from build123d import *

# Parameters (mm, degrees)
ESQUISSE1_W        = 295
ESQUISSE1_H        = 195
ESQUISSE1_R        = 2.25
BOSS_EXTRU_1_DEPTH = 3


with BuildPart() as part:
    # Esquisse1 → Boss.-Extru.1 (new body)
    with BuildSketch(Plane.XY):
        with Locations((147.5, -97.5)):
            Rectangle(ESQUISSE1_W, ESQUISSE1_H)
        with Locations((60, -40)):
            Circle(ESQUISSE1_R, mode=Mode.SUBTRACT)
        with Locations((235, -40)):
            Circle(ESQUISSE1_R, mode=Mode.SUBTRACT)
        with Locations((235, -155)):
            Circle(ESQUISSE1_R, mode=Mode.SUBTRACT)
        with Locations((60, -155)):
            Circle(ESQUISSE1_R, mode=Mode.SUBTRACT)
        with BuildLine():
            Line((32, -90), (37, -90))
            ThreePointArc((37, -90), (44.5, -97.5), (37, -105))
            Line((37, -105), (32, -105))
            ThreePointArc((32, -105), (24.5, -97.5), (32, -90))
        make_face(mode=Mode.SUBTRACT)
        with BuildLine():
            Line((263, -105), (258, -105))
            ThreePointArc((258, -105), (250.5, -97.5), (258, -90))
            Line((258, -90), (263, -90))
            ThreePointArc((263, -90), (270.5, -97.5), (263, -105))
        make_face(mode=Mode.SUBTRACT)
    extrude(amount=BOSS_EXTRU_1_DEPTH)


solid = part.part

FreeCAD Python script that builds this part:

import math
import FreeCAD as App
import Part
import Sketcher

doc = App.newDocument("Part")
body = doc.addObject("PartDesign::Body", "Body")

sketch1 = doc.addObject("Sketcher::SketchObject", "Sketch")
body.addObject(sketch1)
sketch1.AttachmentSupport = (doc.XY_Plane, [""])
sketch1.MapMode = "FlatFace"
sketch1.addGeometry([
    Part.LineSegment(App.Vector(0, 0, 0), App.Vector(0, -195, 0)),
    Part.LineSegment(App.Vector(0, -195, 0), App.Vector(295, -195, 0)),
    Part.LineSegment(App.Vector(295, -195, 0), App.Vector(295, 0, 0)),
    Part.LineSegment(App.Vector(295, 0, 0), App.Vector(0, 0, 0)),
    Part.Circle(App.Vector(60, -155, 0), App.Vector(0, 0, 1), 2.25),
    Part.ArcOfCircle(Part.Circle(App.Vector(32, -97.5, 0), App.Vector(0, 0, 1), 7.5), math.radians(90), math.radians(270)),
    Part.LineSegment(App.Vector(32, -90, 0), App.Vector(37, -90, 0)),
    Part.ArcOfCircle(Part.Circle(App.Vector(37, -97.5, 0), App.Vector(0, 0, 1), 7.5), math.radians(-90), math.radians(90)),
    Part.LineSegment(App.Vector(37, -105, 0), App.Vector(32, -105, 0)),
    Part.Circle(App.Vector(235, -155, 0), App.Vector(0, 0, 1), 2.25),
    Part.ArcOfCircle(Part.Circle(App.Vector(263, -97.5, 0), App.Vector(0, 0, 1), 7.5), math.radians(-90), math.radians(90)),
    Part.LineSegment(App.Vector(263, -105, 0), App.Vector(258, -105, 0)),
    Part.ArcOfCircle(Part.Circle(App.Vector(258, -97.5, 0), App.Vector(0, 0, 1), 7.5), math.radians(90), math.radians(270)),
    Part.LineSegment(App.Vector(258, -90, 0), App.Vector(263, -90, 0)),
    Part.Circle(App.Vector(60, -40, 0), App.Vector(0, 0, 1), 2.25),
    Part.Circle(App.Vector(235, -40, 0), App.Vector(0, 0, 1), 2.25),
], False)
sketch1.addConstraint([
    Sketcher.Constraint("Coincident", 0, 2, 1, 1),
    Sketcher.Constraint("Coincident", 1, 2, 2, 1),
    Sketcher.Constraint("Coincident", 2, 2, 3, 1),
    Sketcher.Constraint("Coincident", 3, 2, 0, 1),
    Sketcher.Constraint("Tangent", 5, 1, 6, 1),
    Sketcher.Constraint("Tangent", 6, 2, 7, 2),
    Sketcher.Constraint("Tangent", 7, 1, 8, 1),
    Sketcher.Constraint("Tangent", 8, 2, 5, 2),
    Sketcher.Constraint("Tangent", 10, 1, 11, 1),
    Sketcher.Constraint("Tangent", 11, 2, 12, 2),
    Sketcher.Constraint("Tangent", 12, 1, 13, 1),
    Sketcher.Constraint("Tangent", 13, 2, 10, 2),
    Sketcher.Constraint("Vertical", 0),
    Sketcher.Constraint("Horizontal", 1),
    Sketcher.Constraint("Vertical", 2),
    Sketcher.Constraint("Horizontal", 3),
    Sketcher.Constraint("Horizontal", 6),
    Sketcher.Constraint("Horizontal", 8),
    Sketcher.Constraint("Horizontal", 11),
    Sketcher.Constraint("Horizontal", 13),
    Sketcher.Constraint("Coincident", 3, 2, -1, 1),
    Sketcher.Constraint("Equal", 4, 9),
    Sketcher.Constraint("Equal", 7, 10),
    Sketcher.Constraint("Equal", 9, 14),
    Sketcher.Constraint("Equal", 14, 15),
    Sketcher.Constraint("Horizontal", 4, 3, 9, 3),
    Sketcher.Constraint("Horizontal", 7, 3, 10, 3),
    Sketcher.Constraint("Horizontal", 14, 3, 15, 3),
    Sketcher.Constraint("Vertical", 4, 3, 14, 3),
    Sketcher.Constraint("Vertical", 9, 3, 15, 3),
    Sketcher.Constraint("Equal", 8, 11),
    Sketcher.Constraint("Diameter", 4, 4.5),
    Sketcher.Constraint("Radius", 5, 7.5),
    Sketcher.Constraint("DistanceX", 1, 1, 1, 2, 295.0),
    Sketcher.Constraint("DistanceX", 6, 1, 6, 2, 5.0),
    Sketcher.Constraint("DistanceY", 0, 2, 0, 1, 195.0),
    Sketcher.Constraint("DistanceX", -1, 1, 4, 3, 60.0),
    Sketcher.Constraint("DistanceY", 4, 3, -1, 1, 155.0),
    Sketcher.Constraint("DistanceX", -1, 1, 5, 3, 32.0),
    Sketcher.Constraint("DistanceX", -1, 1, 9, 3, 235.0),
    Sketcher.Constraint("DistanceX", -1, 1, 10, 3, 263.0),
    Sketcher.Constraint("DistanceY", 14, 3, -1, 1, 40.0),
    Sketcher.Constraint("DistanceY", 5, 1, -1, 1, 90.0),
])
pad1 = doc.addObject("PartDesign::Pad", "Pad")
body.addObject(pad1)
pad1.Profile = sketch1
pad1.Length = 3

doc.recompute()
